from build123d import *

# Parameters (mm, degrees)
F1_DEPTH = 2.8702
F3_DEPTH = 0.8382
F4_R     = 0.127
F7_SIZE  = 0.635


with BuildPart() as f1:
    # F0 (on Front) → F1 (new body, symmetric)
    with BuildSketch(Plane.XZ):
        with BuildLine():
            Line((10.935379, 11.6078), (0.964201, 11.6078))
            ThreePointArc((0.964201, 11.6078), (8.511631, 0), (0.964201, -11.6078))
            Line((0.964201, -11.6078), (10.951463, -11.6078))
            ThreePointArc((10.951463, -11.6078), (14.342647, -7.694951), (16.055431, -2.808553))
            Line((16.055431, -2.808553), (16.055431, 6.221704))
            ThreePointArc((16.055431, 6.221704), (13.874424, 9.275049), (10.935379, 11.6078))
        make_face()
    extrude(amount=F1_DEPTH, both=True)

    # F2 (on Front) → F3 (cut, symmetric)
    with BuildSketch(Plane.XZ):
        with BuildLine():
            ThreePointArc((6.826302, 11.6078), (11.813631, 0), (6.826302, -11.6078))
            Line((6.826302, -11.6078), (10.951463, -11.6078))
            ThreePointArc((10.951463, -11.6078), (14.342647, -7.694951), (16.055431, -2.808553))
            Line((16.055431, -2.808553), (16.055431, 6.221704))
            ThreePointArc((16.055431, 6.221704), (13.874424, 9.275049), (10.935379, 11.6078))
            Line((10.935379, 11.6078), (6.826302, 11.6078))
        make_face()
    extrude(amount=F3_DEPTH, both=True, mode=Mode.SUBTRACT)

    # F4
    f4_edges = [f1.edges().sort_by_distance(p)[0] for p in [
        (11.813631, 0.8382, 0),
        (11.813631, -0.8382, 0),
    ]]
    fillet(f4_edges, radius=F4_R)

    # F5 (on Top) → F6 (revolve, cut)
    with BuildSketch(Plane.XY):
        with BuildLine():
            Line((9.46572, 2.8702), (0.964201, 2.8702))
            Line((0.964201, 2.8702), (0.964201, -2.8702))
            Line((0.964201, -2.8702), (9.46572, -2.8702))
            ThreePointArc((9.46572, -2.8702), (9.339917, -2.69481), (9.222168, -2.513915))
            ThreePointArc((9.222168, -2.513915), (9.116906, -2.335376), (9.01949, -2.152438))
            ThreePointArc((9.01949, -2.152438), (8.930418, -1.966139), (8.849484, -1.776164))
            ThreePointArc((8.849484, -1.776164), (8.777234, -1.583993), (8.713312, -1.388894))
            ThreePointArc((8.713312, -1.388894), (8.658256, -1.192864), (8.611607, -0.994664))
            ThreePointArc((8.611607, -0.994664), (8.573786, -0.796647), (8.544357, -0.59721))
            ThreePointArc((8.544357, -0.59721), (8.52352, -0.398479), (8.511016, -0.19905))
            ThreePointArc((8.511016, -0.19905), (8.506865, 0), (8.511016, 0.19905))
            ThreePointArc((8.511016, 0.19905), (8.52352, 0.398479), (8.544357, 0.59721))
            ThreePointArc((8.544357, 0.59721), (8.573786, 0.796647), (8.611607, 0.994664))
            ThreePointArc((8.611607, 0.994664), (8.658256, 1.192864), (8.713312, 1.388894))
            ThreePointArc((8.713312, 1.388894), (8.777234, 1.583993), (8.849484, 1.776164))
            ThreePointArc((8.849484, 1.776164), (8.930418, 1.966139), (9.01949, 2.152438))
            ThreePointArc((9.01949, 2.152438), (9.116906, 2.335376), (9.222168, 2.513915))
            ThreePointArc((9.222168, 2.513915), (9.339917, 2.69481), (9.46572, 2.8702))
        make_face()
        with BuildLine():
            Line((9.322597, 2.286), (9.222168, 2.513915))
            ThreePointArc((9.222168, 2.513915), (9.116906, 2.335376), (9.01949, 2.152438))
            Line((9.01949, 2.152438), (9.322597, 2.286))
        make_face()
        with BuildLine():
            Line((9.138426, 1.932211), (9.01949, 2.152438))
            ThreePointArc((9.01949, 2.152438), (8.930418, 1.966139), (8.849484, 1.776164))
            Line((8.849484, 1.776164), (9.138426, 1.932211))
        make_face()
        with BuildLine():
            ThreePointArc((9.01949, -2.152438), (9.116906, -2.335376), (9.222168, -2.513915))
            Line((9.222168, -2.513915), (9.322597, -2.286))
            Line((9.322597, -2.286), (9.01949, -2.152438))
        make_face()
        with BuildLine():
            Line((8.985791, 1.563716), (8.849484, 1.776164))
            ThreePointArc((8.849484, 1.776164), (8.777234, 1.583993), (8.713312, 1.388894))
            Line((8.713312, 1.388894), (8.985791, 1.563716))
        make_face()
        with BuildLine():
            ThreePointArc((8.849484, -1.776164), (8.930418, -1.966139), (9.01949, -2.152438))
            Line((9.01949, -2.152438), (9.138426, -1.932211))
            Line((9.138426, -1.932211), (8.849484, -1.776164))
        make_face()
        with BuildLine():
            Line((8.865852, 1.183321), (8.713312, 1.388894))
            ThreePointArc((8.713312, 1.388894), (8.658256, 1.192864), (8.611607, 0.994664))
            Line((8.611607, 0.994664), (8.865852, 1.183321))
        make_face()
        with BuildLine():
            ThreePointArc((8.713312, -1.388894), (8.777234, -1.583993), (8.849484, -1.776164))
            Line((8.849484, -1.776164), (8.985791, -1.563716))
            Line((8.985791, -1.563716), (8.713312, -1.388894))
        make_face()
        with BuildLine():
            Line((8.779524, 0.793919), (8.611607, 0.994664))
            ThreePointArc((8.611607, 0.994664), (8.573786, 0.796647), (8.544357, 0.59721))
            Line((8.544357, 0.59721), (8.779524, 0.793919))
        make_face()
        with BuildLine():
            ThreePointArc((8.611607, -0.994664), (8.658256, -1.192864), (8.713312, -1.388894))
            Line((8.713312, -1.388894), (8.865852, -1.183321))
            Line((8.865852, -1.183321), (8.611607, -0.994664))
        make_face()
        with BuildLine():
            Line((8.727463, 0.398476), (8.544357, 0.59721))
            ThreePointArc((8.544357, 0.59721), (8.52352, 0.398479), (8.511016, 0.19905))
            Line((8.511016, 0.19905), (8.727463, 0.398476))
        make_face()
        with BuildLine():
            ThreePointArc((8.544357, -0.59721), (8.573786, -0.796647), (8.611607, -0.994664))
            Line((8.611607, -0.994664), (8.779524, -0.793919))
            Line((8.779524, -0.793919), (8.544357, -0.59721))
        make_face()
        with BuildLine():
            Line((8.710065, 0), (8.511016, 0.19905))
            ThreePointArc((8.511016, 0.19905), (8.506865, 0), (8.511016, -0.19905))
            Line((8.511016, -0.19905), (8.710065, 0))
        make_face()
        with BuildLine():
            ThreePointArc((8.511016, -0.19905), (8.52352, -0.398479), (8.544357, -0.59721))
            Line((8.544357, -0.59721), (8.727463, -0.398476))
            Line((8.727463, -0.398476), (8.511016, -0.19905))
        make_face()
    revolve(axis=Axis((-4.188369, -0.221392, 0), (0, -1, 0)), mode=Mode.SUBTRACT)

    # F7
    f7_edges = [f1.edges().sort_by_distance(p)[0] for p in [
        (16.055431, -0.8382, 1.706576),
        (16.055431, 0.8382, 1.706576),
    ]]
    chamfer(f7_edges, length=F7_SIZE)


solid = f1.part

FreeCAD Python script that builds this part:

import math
import FreeCAD as App
import Part
import Sketcher
Q = App.Units.Quantity


def edges_at(feature, points):
    """Names of the edges that pass closest to the given points."""
    edges = feature.Shape.Edges
    near = lambda p: min(range(len(edges)), key=lambda i: edges[i].distToShape(Part.Vertex(*p))[0])
    return sorted({f"Edge{near(p) + 1}" for p in points})

doc = App.newDocument("Part")
body = doc.addObject("PartDesign::Body", "Body")

# Sketch on XZ plane
sketch1 = body.newObject("Sketcher::SketchObject", "Sketch")
sketch1.AttachmentSupport = (doc.getObject("XZ_Plane"), [""])
sketch1.MapMode = "FlatFace"
sketch1.addGeometry(Part.LineSegment(App.Vector(10.935379, 11.6078, 0), App.Vector(0.964201, 11.6078, 0)), False)
sketch1.addGeometry(Part.ArcOfCircle(Part.Circle(App.Vector(-4.188369, 0, 0), App.Vector(0, 0, 1), 12.7), math.radians(-66.064112), math.radians(66.064112)), False)
sketch1.addGeometry(Part.LineSegment(App.Vector(0.964201, -11.6078, 0), App.Vector(10.951463, -11.6078, 0)), False)
sketch1.addGeometry(Part.ArcOfCircle(Part.Circle(App.Vector(2.390225, -0.761997, 0), App.Vector(0, 0, 1), 13.817606), math.radians(-51.713868), math.radians(-8.517543)), False)
sketch1.addGeometry(Part.LineSegment(App.Vector(16.055431, -2.808553, 0), App.Vector(16.055431, 6.221704, 0)), False)
sketch1.addGeometry(Part.ArcOfCircle(Part.Circle(App.Vector(4.117436, 0.000004, 0), App.Vector(0, 0, 1), 13.461994), math.radians(27.527081), math.radians(59.571772)), False)
sketch1.addConstraint(Sketcher.Constraint("Coincident", 0, 2, 1, 2))
sketch1.addConstraint(Sketcher.Constraint("Coincident", 1, 1, 2, 1))
sketch1.addConstraint(Sketcher.Constraint("Coincident", 2, 2, 3, 1))
sketch1.addConstraint(Sketcher.Constraint("Coincident", 3, 2, 4, 1))
sketch1.addConstraint(Sketcher.Constraint("Coincident", 4, 2, 5, 1))
sketch1.addConstraint(Sketcher.Constraint("Coincident", 5, 2, 0, 1))
sketch1.addConstraint(Sketcher.Constraint("Horizontal", 0))
sketch1.addConstraint(Sketcher.Constraint("Horizontal", 2))
sketch1.addConstraint(Sketcher.Constraint("Vertical", 4))
sketch1.addConstraint(Sketcher.Constraint("Symmetric", 0, 2, 1, 1, -1))
sketch1.addConstraint(Sketcher.Constraint("Radius", 1, Q("0.5 in")))
sketch1.addConstraint(Sketcher.Constraint("DistanceY", 3, 3, -1, 1, Q("0.0299999 in")))
sketch1.addConstraint(Sketcher.Constraint("DistanceY", 3, 3, 5, 3, Q("0.03 in")))
sketch1.addConstraint(Sketcher.Constraint("DistanceX", 5, 3, 3, 2, Q("0.4699998 in")))
sketch1.addConstraint(Sketcher.Constraint("DistanceY", -1, 1, 0, 2, Q("0.457 in")))
sketch1.addConstraint(Sketcher.Constraint("DistanceX", 1, 3, 5, 3, Q("0.3270002 in")))
sketch1.addConstraint(Sketcher.Constraint("Radius", 3, Q("13.817606 mm")))
sketch1.addConstraint(Sketcher.Constraint("Radius", 5, Q("13.461994 mm")))
sketch1.addConstraint(Sketcher.Constraint("DistanceX", -1, 1, 0, 2, Q("0.964201 mm")))
sketch1.addConstraint(Sketcher.Constraint("DistanceX", 2, 1, 2, 2, Q("9.987262 mm")))
pad1 = body.newObject("PartDesign::Pad", "Pad")
pad1.Profile = sketch1
pad1.Length = Q("0.226 in")
pad1.Midplane = True

# Sketch on XZ plane
sketch2 = body.newObject("Sketcher::SketchObject", "Sketch001")
sketch2.AttachmentSupport = (doc.getObject("XZ_Plane"), [""])
sketch2.MapMode = "FlatFace"
sketch2.addGeometry(Part.ArcOfCircle(Part.Circle(App.Vector(-4.188368, 0, 0), App.Vector(0, 0, 1), 16.001999), math.radians(-46.501871), math.radians(46.501871)), False)
sketch2.addGeometry(Part.LineSegment(App.Vector(6.826302, -11.6078, 0), App.Vector(10.951463, -11.6078, 0)), False)
sketch2.addGeometry(Part.ArcOfCircle(Part.Circle(App.Vector(2.390225, -0.761997, 0), App.Vector(0, 0, 1), 13.817606), math.radians(-51.713868), math.radians(-8.517543)), False)
sketch2.addGeometry(Part.LineSegment(App.Vector(16.055431, -2.808553, 0), App.Vector(16.055431, 6.221704, 0)), False)
sketch2.addGeometry(Part.ArcOfCircle(Part.Circle(App.Vector(4.117436, 0.000004, 0), App.Vector(0, 0, 1), 13.461994), math.radians(27.527081), math.radians(59.571772)), False)
sketch2.addGeometry(Part.LineSegment(App.Vector(10.935379, 11.6078, 0), App.Vector(6.826302, 11.6078, 0)), False)
sketch2.addConstraint(Sketcher.Constraint("Coincident", 0, 1, 1, 1))
sketch2.addConstraint(Sketcher.Constraint("Coincident", 1, 2, 2, 1))
sketch2.addConstraint(Sketcher.Constraint("Coincident", 2, 2, 3, 1))
sketch2.addConstraint(Sketcher.Constraint("Coincident", 3, 2, 4, 1))
sketch2.addConstraint(Sketcher.Constraint("Coincident", 4, 2, 5, 1))
sketch2.addConstraint(Sketcher.Constraint("Coincident", 5, 2, 0, 2))
sketch2.addConstraint(Sketcher.Constraint("Horizontal", 1))
sketch2.addConstraint(Sketcher.Constraint("Vertical", 3))
sketch2.addConstraint(Sketcher.Constraint("Horizontal", 5))
sketch2.addConstraint(Sketcher.Constraint("Symmetric", 0, 1, 5, 2, -1))
sketch2.addConstraint(Sketcher.Constraint("Radius", 0, Q("0.63 in")))
sketch2.addConstraint(Sketcher.Constraint("DistanceY", 2, 3, -1, 1, Q("0.0299999 in")))
sketch2.addConstraint(Sketcher.Constraint("DistanceY", 2, 3, 4, 3, Q("0.03 in")))
sketch2.addConstraint(Sketcher.Constraint("DistanceX", 4, 3, 2, 2, Q("0.4699998 in")))
sketch2.addConstraint(Sketcher.Constraint("DistanceY", 0, 1, -1, 1, Q("0.457 in")))
sketch2.addConstraint(Sketcher.Constraint("DistanceX", 0, 3, 4, 3, Q("0.3270002 in")))
sketch2.addConstraint(Sketcher.Constraint("Radius", 2, Q("13.817606 mm")))
sketch2.addConstraint(Sketcher.Constraint("Radius", 4, Q("13.461994 mm")))
sketch2.addConstraint(Sketcher.Constraint("DistanceX", 1, 1, 1, 2, Q("4.125161 mm")))
sketch2.addConstraint(Sketcher.Constraint("DistanceX", -1, 1, 0, 1, Q("6.826302 mm")))
pocket1 = body.newObject("PartDesign::Pocket", "Pocket")
pocket1.Profile = sketch2
pocket1.Length = Q("0.066 in")
pocket1.Midplane = True
doc.recompute()

fillet = body.newObject("PartDesign::Fillet", "Fillet")
fillet.Base = (pocket1, edges_at(pocket1, [(11.814, 0.838, 0), (11.814, -0.838, 0)]))
fillet.Radius = Q("0.005 in")

# Sketch on XY plane
sketch3 = body.newObject("Sketcher::SketchObject", "Sketch002")
sketch3.AttachmentSupport = (doc.getObject("XY_Plane"), [""])
sketch3.MapMode = "FlatFace"
sketch3.addGeometry(Part.LineSegment(App.Vector(9.46572, 2.8702, 0), App.Vector(0.964201, 2.8702, 0)), False)
sketch3.addGeometry(Part.LineSegment(App.Vector(0.964201, 2.8702, 0), App.Vector(0.964201, -2.8702, 0)), False)
sketch3.addGeometry(Part.LineSegment(App.Vector(0.964201, -2.8702, 0), App.Vector(9.46572, -2.8702, 0)), False)
sketch3.addGeometry(Part.ArcOfCircle(Part.Circle(App.Vector(13.282318, 0.000166, 0), App.Vector(0, 0, 1), 4.775502), math.radians(-148.23384), math.radians(-143.054107)), False)
sketch3.addGeometry(Part.LineSegment(App.Vector(9.222168, -2.513915, 0), App.Vector(9.322597, -2.286, 0)), False)
sketch3.addGeometry(Part.LineSegment(App.Vector(9.322597, -2.286, 0), App.Vector(9.01949, -2.152438, 0)), False)
sketch3.addGeometry(Part.LineSegment(App.Vector(9.01949, -2.152438, 0), App.Vector(9.138426, -1.932211, 0)), False)
sketch3.addGeometry(Part.LineSegment(App.Vector(9.138426, -1.932211, 0), App.Vector(8.849484, -1.776164, 0)), False)
sketch3.addGeometry(Part.LineSegment(App.Vector(8.849484, -1.776164, 0), App.Vector(8.985791, -1.563716, 0)), False)
sketch3.addGeometry(Part.LineSegment(App.Vector(8.985791, -1.563716, 0), App.Vector(8.713312, -1.388894, 0)), False)
sketch3.addGeometry(Part.LineSegment(App.Vector(8.713312, -1.388894, 0), App.Vector(8.865852, -1.183321, 0)), False)
sketch3.addGeometry(Part.LineSegment(App.Vector(8.865852, -1.183321, 0), App.Vector(8.611607, -0.994664, 0)), False)
sketch3.addGeometry(Part.LineSegment(App.Vector(8.611607, -0.994664, 0), App.Vector(8.779524, -0.793919, 0)), False)
sketch3.addGeometry(Part.LineSegment(App.Vector(8.779524, -0.793919, 0), App.Vector(8.544357, -0.59721, 0)), False)
sketch3.addGeometry(Part.LineSegment(App.Vector(8.544357, -0.59721, 0), App.Vector(8.727463, -0.398476, 0)), False)
sketch3.addGeometry(Part.LineSegment(App.Vector(8.727463, -0.398476, 0), App.Vector(8.511016, -0.19905, 0)), False)
sketch3.addGeometry(Part.LineSegment(App.Vector(8.511016, -0.19905, 0), App.Vector(8.710065, 0, 0)), False)
sketch3.addGeometry(Part.LineSegment(App.Vector(8.710065, 0, 0), App.Vector(8.511016, 0.19905, 0)), False)
sketch3.addGeometry(Part.LineSegment(App.Vector(8.511016, 0.19905, 0), App.Vector(8.727463, 0.398476, 0)), False)
sketch3.addGeometry(Part.LineSegment(App.Vector(8.727463, 0.398476, 0), App.Vector(8.544357, 0.59721, 0)), False)
sketch3.addGeometry(Part.LineSegment(App.Vector(8.544357, 0.59721, 0), App.Vector(8.779524, 0.793919, 0)), False)
sketch3.addGeometry(Part.LineSegment(App.Vector(8.779524, 0.793919, 0), App.Vector(8.611607, 0.994664, 0)), False)
sketch3.addGeometry(Part.LineSegment(App.Vector(8.611607, 0.994664, 0), App.Vector(8.865852, 1.183321, 0)), False)
sketch3.addGeometry(Part.LineSegment(App.Vector(8.865852, 1.183321, 0), App.Vector(8.713312, 1.388894, 0)), False)
sketch3.addGeometry(Part.LineSegment(App.Vector(8.713312, 1.388894, 0), App.Vector(8.985791, 1.563716, 0)), False)
sketch3.addGeometry(Part.LineSegment(App.Vector(8.985791, 1.563716, 0), App.Vector(8.849484, 1.776164, 0)), False)
sketch3.addGeometry(Part.LineSegment(App.Vector(8.849484, 1.776164, 0), App.Vector(9.138426, 1.932211, 0)), False)
sketch3.addGeometry(Part.LineSegment(App.Vector(9.138426, 1.932211, 0), App.Vector(9.01949, 2.152438, 0)), False)
sketch3.addGeometry(Part.LineSegment(App.Vector(9.01949, 2.152438, 0), App.Vector(9.322597, 2.286, 0)), False)
sketch3.addGeometry(Part.LineSegment(App.Vector(9.322597, 2.286, 0), App.Vector(9.222168, 2.513915, 0)), False)
sketch3.addGeometry(Part.ArcOfCircle(Part.Circle(App.Vector(13.282318, -0.000166, 0), App.Vector(0, 0, 1), 4.775502), math.radians(143.054107), math.radians(148.23384)), False)
sketch3.addGeometry(Part.LineSegment(App.Vector(-4.188369, 2.8702, 0), App.Vector(-4.188369, -2.8702, 0)), True)  # axis
sketch3.addConstraint(Sketcher.Constraint("Coincident", 0, 2, 1, 1))
sketch3.addConstraint(Sketcher.Constraint("Coincident", 1, 2, 2, 1))
sketch3.addConstraint(Sketcher.Constraint("Coincident", 2, 2, 3, 2))
sketch3.addConstraint(Sketcher.Constraint("Coincident", 3, 1, 4, 1))
sketch3.addConstraint(Sketcher.Constraint("Coincident", 4, 2, 5, 1))
sketch3.addConstraint(Sketcher.Constraint("Coincident", 5, 2, 6, 1))
sketch3.addConstraint(Sketcher.Constraint("Coincident", 6, 2, 7, 1))
sketch3.addConstraint(Sketcher.Constraint("Coincident", 7, 2, 8, 1))
sketch3.addConstraint(Sketcher.Constraint("Coincident", 8, 2, 9, 1))
sketch3.addConstraint(Sketcher.Constraint("Coincident", 9, 2, 10, 1))
sketch3.addConstraint(Sketcher.Constraint("Coincident", 10, 2, 11, 1))
sketch3.addConstraint(Sketcher.Constraint("Coincident", 11, 2, 12, 1))
sketch3.addConstraint(Sketcher.Constraint("Coincident", 12, 2, 13, 1))
sketch3.addConstraint(Sketcher.Constraint("Coincident", 13, 2, 14, 1))
sketch3.addConstraint(Sketcher.Constraint("Coincident", 14, 2, 15, 1))
sketch3.addConstraint(Sketcher.Constraint("Coincident", 15, 2, 16, 1))
sketch3.addConstraint(Sketcher.Constraint("Coincident", 16, 2, 17, 1))
sketch3.addConstraint(Sketcher.Constraint("Coincident", 17, 2, 18, 1))
sketch3.addConstraint(Sketcher.Constraint("Coincident", 18, 2, 19, 1))
sketch3.addConstraint(Sketcher.Constraint("Coincident", 19, 2, 20, 1))
sketch3.addConstraint(Sketcher.Constraint("Coincident", 20, 2, 21, 1))
sketch3.addConstraint(Sketcher.Constraint("Coincident", 21, 2, 22, 1))
sketch3.addConstraint(Sketcher.Constraint("Coincident", 22, 2, 23, 1))
sketch3.addConstraint(Sketcher.Constraint("Coincident", 23, 2, 24, 1))
sketch3.addConstraint(Sketcher.Constraint("Coincident", 24, 2, 25, 1))
sketch3.addConstraint(Sketcher.Constraint("Coincident", 25, 2, 26, 1))
sketch3.addConstraint(Sketcher.Constraint("Coincident", 26, 2, 27, 1))
sketch3.addConstraint(Sketcher.Constraint("Coincident", 27, 2, 28, 1))
sketch3.addConstraint(Sketcher.Constraint("Coincident", 28, 2, 29, 1))
sketch3.addConstraint(Sketcher.Constraint("Coincident", 29, 2, 30, 2))
sketch3.addConstraint(Sketcher.Constraint("Coincident", 30, 1, 0, 1))
sketch3.addConstraint(Sketcher.Constraint("Horizontal", 0))
sketch3.addConstraint(Sketcher.Constraint("Vertical", 1))
sketch3.addConstraint(Sketcher.Constraint("Horizontal", 2))
sketch3.addConstraint(Sketcher.Constraint("Vertical", 31))
sketch3.addConstraint(Sketcher.Constraint("Equal", 3, 30))
sketch3.addConstraint(Sketcher.Constraint("Symmetric", 3, 3, 30, 3, -1))
sketch3.addConstraint(Sketcher.Constraint("Symmetric", 15, 2, 17, 2, -1))
sketch3.addConstraint(Sketcher.Constraint("Symmetric", 14, 2, 18, 2, -1))
sketch3.addConstraint(Sketcher.Constraint("Symmetric", 13, 2, 19, 2, -1))
sketch3.addConstraint(Sketcher.Constraint("Symmetric", 12, 2, 20, 2, -1))
sketch3.addConstraint(Sketcher.Constraint("Symmetric", 11, 2, 21, 2, -1))
sketch3.addConstraint(Sketcher.Constraint("Symmetric", 10, 2, 22, 2, -1))
sketch3.addConstraint(Sketcher.Constraint("Symmetric", 9, 2, 23, 2, -1))
sketch3.addConstraint(Sketcher.Constraint("Symmetric", 8, 2, 24, 2, -1))
sketch3.addConstraint(Sketcher.Constraint("Symmetric", 7, 2, 25, 2, -1))
sketch3.addConstraint(Sketcher.Constraint("Symmetric", 6, 2, 26, 2, -1))
sketch3.addConstraint(Sketcher.Constraint("Symmetric", 5, 2, 27, 2, -1))
sketch3.addConstraint(Sketcher.Constraint("Symmetric", 4, 2, 28, 2, -1))
sketch3.addConstraint(Sketcher.Constraint("PointOnObject", 16, 2, -1))
sketch3.addConstraint(Sketcher.Constraint("Perpendicular", 4, 5))
sketch3.addConstraint(Sketcher.Constraint("Perpendicular", 6, 7))
sketch3.addConstraint(Sketcher.Constraint("Perpendicular", 14, 15))
sketch3.addConstraint(Sketcher.Constraint("Perpendicular", 28, 29))
sketch3.addConstraint(Sketcher.Constraint("Horizontal", 30, 1, 31, 1))
sketch3.addConstraint(Sketcher.Constraint("Horizontal", 2, 2, 31, 2))
sketch3.addConstraint(Sketcher.Constraint("Vertical", 2, 2, 30, 1))
sketch3.addConstraint(Sketcher.Constraint("DistanceY", 1, 2, 1, 1, Q("0.226 in")))
sketch3.addConstraint(Sketcher.Constraint("DistanceY", 4, 2, -1, 1, Q("0.09 in")))
sketch3.addConstraint(Sketcher.Constraint("Radius", 3, Q("4.775502 mm")))
sketch3.addConstraint(Sketcher.Constraint("Distance", 16, Q("0.281499 mm")))
sketch3.addConstraint(Sketcher.Constraint("DistanceX", 0, 2, 0, 1, Q("8.501519 mm")))
sketch3.addConstraint(Sketcher.Constraint("DistanceX", -1, 1, 0, 2, Q("0.964201 mm")))
sketch3.addConstraint(Sketcher.Constraint("DistanceX", 8, 2, 5, 2, Q("0.033699 mm")))
sketch3.addConstraint(Sketcher.Constraint("DistanceY", 3, 1, 8, 2, Q("0.950199 mm")))
sketch3.addConstraint(Sketcher.Constraint("DistanceY", 7, 2, 11, 2, Q("0.7815 mm")))
sketch3.addConstraint(Sketcher.Constraint("DistanceX", 16, 2, 14, 2, Q("0.017398 mm")))
sketch3.addConstraint(Sketcher.Constraint("DistanceY", 15, 2, 17, 2, Q("0.3981 mm")))
sketch3.addConstraint(Sketcher.Constraint("Distance", 4, Q("0.249061 mm")))
sketch3.addConstraint(Sketcher.Constraint("Distance", 5, Q("0.331229 mm")))
sketch3.addConstraint(Sketcher.Constraint("Distance", 6, Q("0.250291 mm")))
sketch3.addConstraint(Sketcher.Constraint("Distance", 9, Q("0.32374 mm")))
sketch3.addConstraint(Sketcher.Constraint("Distance", 13, Q("0.306591 mm")))
sketch3.addConstraint(Sketcher.Constraint("DistanceX", -1, 1, 3, 1, Q("9.222168 mm")))
sketch3.addConstraint(Sketcher.Constraint("DistanceX", -1, 1, 5, 2, Q("9.01949 mm")))
sketch3.addConstraint(Sketcher.Constraint("DistanceY", 6, 2, -1, 1, Q("1.932211 mm")))
sketch3.addConstraint(Sketcher.Constraint("DistanceY", 10, 2, -1, 1, Q("1.183321 mm")))
sketch3.addConstraint(Sketcher.Constraint("DistanceY", 12, 2, -1, 1, Q("0.793919 mm")))
sketch3.addConstraint(Sketcher.Constraint("DistanceY", 13, 2, -1, 1, Q("0.59721 mm")))
sketch3.addConstraint(Sketcher.Constraint("DistanceX", 31, 1, -1, 1, Q("4.188369 mm")))
sketch3.addConstraint(Sketcher.Constraint("DistanceY", 3, 1, 7, 2, Q("0.737751 mm")))
sketch3.addConstraint(Sketcher.Constraint("DistanceX", 9, 2, 8, 2, Q("0.272479 mm")))
sketch3.addConstraint(Sketcher.Constraint("DistanceX", 9, 2, 10, 2, Q("0.15254 mm")))
sketch3.addConstraint(Sketcher.Constraint("DistanceX", 11, 2, 6, 2, Q("0.526819 mm")))
sketch3.addConstraint(Sketcher.Constraint("DistanceX", 12, 2, 7, 2, Q("0.06996 mm")))
sketch3.addConstraint(Sketcher.Constraint("DistanceY", 9, 2, 14, 2, Q("0.990418 mm")))
groove = body.newObject("PartDesign::Groove", "Groove")
groove.Profile = sketch3
groove.ReferenceAxis = (sketch3, ["Axis0"])
groove.Angle = 360
doc.recompute()

chamfer = body.newObject("PartDesign::Chamfer", "Chamfer")
chamfer.Base = (groove, edges_at(groove, [(16.055, -0.838, 1.707), (16.055, 0.838, 1.707)]))
chamfer.Size = Q("0.025 in")

doc.recompute()
